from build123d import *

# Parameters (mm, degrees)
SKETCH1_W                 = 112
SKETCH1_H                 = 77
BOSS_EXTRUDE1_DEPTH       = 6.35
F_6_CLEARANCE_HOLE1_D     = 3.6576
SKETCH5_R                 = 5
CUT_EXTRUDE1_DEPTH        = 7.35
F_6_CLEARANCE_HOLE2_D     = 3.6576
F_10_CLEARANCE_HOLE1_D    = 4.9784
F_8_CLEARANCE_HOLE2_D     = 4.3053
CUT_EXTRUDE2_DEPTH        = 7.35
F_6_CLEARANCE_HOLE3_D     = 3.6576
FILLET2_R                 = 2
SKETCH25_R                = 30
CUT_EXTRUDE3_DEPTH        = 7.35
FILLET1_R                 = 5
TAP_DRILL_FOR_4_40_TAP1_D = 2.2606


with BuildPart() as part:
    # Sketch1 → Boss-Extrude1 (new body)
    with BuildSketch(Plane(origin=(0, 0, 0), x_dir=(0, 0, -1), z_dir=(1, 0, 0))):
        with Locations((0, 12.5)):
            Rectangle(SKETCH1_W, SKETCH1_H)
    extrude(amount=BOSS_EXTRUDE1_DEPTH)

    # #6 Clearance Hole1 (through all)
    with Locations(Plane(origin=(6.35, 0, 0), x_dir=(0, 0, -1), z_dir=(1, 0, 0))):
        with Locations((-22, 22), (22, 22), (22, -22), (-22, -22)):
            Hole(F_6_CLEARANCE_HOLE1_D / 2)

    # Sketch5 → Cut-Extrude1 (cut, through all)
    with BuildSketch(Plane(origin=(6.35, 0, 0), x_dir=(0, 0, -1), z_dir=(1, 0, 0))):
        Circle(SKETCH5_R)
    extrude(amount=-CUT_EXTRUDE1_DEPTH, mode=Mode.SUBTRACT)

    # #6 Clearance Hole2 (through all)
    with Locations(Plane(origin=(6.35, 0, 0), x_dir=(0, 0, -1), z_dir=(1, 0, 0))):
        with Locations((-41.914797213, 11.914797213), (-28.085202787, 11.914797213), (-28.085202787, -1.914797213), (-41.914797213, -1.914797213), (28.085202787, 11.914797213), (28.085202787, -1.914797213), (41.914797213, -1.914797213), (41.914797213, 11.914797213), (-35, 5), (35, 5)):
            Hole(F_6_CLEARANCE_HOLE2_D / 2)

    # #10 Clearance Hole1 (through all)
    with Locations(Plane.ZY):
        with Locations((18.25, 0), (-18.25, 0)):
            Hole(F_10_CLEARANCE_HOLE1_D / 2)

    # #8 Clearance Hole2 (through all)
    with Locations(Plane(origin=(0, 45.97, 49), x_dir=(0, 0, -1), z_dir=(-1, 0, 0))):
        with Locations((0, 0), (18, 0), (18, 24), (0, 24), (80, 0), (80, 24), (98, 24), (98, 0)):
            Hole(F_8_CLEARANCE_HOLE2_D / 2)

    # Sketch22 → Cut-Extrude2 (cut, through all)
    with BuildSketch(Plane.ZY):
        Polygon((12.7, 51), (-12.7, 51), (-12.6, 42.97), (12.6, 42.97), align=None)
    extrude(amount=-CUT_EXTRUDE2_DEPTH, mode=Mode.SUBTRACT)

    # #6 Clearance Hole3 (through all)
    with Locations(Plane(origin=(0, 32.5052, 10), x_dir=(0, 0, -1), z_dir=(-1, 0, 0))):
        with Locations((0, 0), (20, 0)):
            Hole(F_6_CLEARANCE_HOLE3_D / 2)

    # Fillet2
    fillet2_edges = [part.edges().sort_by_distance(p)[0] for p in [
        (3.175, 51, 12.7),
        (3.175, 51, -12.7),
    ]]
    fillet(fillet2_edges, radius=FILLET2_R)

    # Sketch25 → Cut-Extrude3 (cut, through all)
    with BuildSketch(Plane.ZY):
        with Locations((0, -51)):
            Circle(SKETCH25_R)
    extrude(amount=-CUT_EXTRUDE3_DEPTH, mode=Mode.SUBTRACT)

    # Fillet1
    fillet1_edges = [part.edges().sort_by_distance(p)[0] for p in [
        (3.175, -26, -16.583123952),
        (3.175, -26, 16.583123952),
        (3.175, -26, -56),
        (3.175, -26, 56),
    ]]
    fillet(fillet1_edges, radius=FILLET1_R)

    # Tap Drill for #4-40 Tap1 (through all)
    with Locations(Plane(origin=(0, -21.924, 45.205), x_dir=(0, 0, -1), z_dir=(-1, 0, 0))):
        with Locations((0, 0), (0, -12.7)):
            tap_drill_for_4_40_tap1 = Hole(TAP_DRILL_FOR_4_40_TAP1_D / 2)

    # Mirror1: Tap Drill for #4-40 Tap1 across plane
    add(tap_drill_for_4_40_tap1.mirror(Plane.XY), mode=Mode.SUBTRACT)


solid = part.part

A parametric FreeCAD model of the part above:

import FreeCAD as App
import Part
import Sketcher
from FreeCAD import Vector
Q = App.Units.Quantity


def edges_at(feature, points):
    """Names of the edges that pass closest to the given points."""
    edges = feature.Shape.Edges
    near = lambda p: min(range(len(edges)), key=lambda i: edges[i].distToShape(Part.Vertex(*p))[0])
    return sorted({f"Edge{near(p) + 1}" for p in points})


def add_polygon(sketch, points):
    """Adds a closed chain of lines whose ends are joined by coincident constraints."""
    first, n = sketch.GeometryCount, len(points)
    for a, b in zip(points, points[1:] + points[:1]):
        sketch.addGeometry(Part.LineSegment(App.Vector(*a, 0), App.Vector(*b, 0)), False)
    for i in range(n):
        sketch.addConstraint(Sketcher.Constraint("Coincident", first + i, 2, first + (i + 1) % n, 1))

doc = App.newDocument("Part")
body = doc.addObject("PartDesign::Body", "Body")

sketch1 = body.newObject("Sketcher::SketchObject", "Sketch")
sketch1.AttachmentSupport = (doc.getObject("YZ_Plane"), [""])
sketch1.MapMode = "FlatFace"
add_polygon(sketch1, [(51, 56), (-26, 56), (-26, -56), (51, -56)])
sketch1.addConstraint(Sketcher.Constraint("Horizontal", 0))
sketch1.addConstraint(Sketcher.Constraint("Vertical", 1))
sketch1.addConstraint(Sketcher.Constraint("Horizontal", 2))
sketch1.addConstraint(Sketcher.Constraint("Vertical", 3))
sketch1.addConstraint(Sketcher.Constraint("DistanceX", 0, 2, 0, 1, Q("77 mm")))
sketch1.addConstraint(Sketcher.Constraint("DistanceY", 1, 2, 1, 1, Q("112 mm")))
sketch1.addConstraint(Sketcher.Constraint("DistanceX", 0, 2, -1, 1, Q("26 mm")))
sketch1.addConstraint(Sketcher.Constraint("DistanceY", -1, 1, 0, 2, Q("56 mm")))
pad1 = body.newObject("PartDesign::Pad", "Pad")
pad1.Profile = sketch1
pad1.Length = 6.35

sketch2 = body.newObject("Sketcher::SketchObject", "Sketch001")
sketch2.AttachmentSupport = (doc.getObject("YZ_Plane"), [""])
sketch2.MapMode = "FlatFace"
sketch2.AttachmentOffset = App.Placement(Vector(0, 0, 6.35), App.Rotation())
sketch2.addGeometry(Part.Circle(Vector(22, 22, 0), Vector(0, 0, 1), 1.8288), False)
sketch2.addGeometry(Part.Circle(Vector(22, -22, 0), Vector(0, 0, 1), 1.8288), False)
sketch2.addGeometry(Part.Circle(Vector(-22, -22, 0), Vector(0, 0, 1), 1.8288), False)
sketch2.addGeometry(Part.Circle(Vector(-22, 22, 0), Vector(0, 0, 1), 1.8288), False)
sketch2.addConstraint(Sketcher.Constraint("Equal", 0, 1))
sketch2.addConstraint(Sketcher.Constraint("Equal", 1, 2))
sketch2.addConstraint(Sketcher.Constraint("Equal", 2, 3))
sketch2.addConstraint(Sketcher.Constraint("Symmetric", 0, 3, 2, 3, -1, 1))
sketch2.addConstraint(Sketcher.Constraint("Symmetric", 1, 3, 3, 3, -1, 1))
sketch2.addConstraint(Sketcher.Constraint("Symmetric", 1, 3, 2, 3, -2))
sketch2.addConstraint(Sketcher.Constraint("DistanceX", -1, 1, 0, 3, Q("22 mm")))
sketch2.addConstraint(Sketcher.Constraint("DistanceY", -1, 1, 0, 3, Q("22 mm")))
sketch2.addConstraint(Sketcher.Constraint("Diameter", 0, Q("3.6576 mm")))
doc.recompute()
hole = body.newObject("PartDesign::Hole", "Hole")
hole.Profile = sketch2
hole.ThreadType = "None"
hole.Diameter = 3.6576
hole.DepthType = "ThroughAll"

sketch3 = body.newObject("Sketcher::SketchObject", "Sketch002")
sketch3.AttachmentSupport = (doc.getObject("YZ_Plane"), [""])
sketch3.MapMode = "FlatFace"
sketch3.AttachmentOffset = App.Placement(Vector(0, 0, 6.35), App.Rotation())
sketch3.addGeometry(Part.Circle(Vector(0, 0, 0), Vector(0, 0, 1), 5), False)
sketch3.addConstraint(Sketcher.Constraint("Coincident", 0, 3, -1, 1))
sketch3.addConstraint(Sketcher.Constraint("Diameter", 0, Q("10 mm")))
pocket1 = body.newObject("PartDesign::Pocket", "Pocket")
pocket1.Profile = sketch3
pocket1.Type = "ThroughAll"

sketch4 = body.newObject("Sketcher::SketchObject", "Sketch003")
sketch4.AttachmentSupport = (doc.getObject("YZ_Plane"), [""])
sketch4.MapMode = "FlatFace"
sketch4.AttachmentOffset = App.Placement(Vector(0, 0, 6.35), App.Rotation())
sketch4.addGeometry(Part.Circle(Vector(11.914797, 41.914797, 0), Vector(0, 0, 1), 1.8288), False)
sketch4.addGeometry(Part.Circle(Vector(11.914797, 28.085203, 0), Vector(0, 0, 1), 1.8288), False)
sketch4.addGeometry(Part.Circle(Vector(-1.914797, 28.085203, 0), Vector(0, 0, 1), 1.8288), False)
sketch4.addGeometry(Part.Circle(Vector(-1.914797, 41.914797, 0), Vector(0, 0, 1), 1.8288), False)
sketch4.addGeometry(Part.Circle(Vector(11.914797, -28.085203, 0), Vector(0, 0, 1), 1.8288), False)
sketch4.addGeometry(Part.Circle(Vector(-1.914797, -28.085203, 0), Vector(0, 0, 1), 1.8288), False)
sketch4.addGeometry(Part.Circle(Vector(-1.914797, -41.914797, 0), Vector(0, 0, 1), 1.8288), False)
sketch4.addGeometry(Part.Circle(Vector(11.914797, -41.914797, 0), Vector(0, 0, 1), 1.8288), False)
sketch4.addGeometry(Part.Circle(Vector(5, 35, 0), Vector(0, 0, 1), 1.8288), False)
sketch4.addGeometry(Part.Circle(Vector(5, -35, 0), Vector(0, 0, 1), 1.8288), False)
sketch4.addConstraint(Sketcher.Constraint("Equal", 0, 1))
sketch4.addConstraint(Sketcher.Constraint("Equal", 1, 2))
sketch4.addConstraint(Sketcher.Constraint("Equal", 2, 3))
sketch4.addConstraint(Sketcher.Constraint("Equal", 3, 4))
sketch4.addConstraint(Sketcher.Constraint("Equal", 4, 5))
sketch4.addConstraint(Sketcher.Constraint("Equal", 5, 6))
sketch4.addConstraint(Sketcher.Constraint("Equal", 6, 7))
sketch4.addConstraint(Sketcher.Constraint("Equal", 7, 8))
sketch4.addConstraint(Sketcher.Constraint("Equal", 8, 9))
sketch4.addConstraint(Sketcher.Constraint("Symmetric", 1, 3, 4, 3, -1))
sketch4.addConstraint(Sketcher.Constraint("Symmetric", 2, 3, 5, 3, -1))
sketch4.addConstraint(Sketcher.Constraint("Symmetric", 3, 3, 6, 3, -1))
sketch4.addConstraint(Sketcher.Constraint("Symmetric", 0, 3, 7, 3, -1))
sketch4.addConstraint(Sketcher.Constraint("Symmetric", 8, 3, 9, 3, -1))
sketch4.addConstraint(Sketcher.Constraint("Horizontal", 1, 3, 2, 3))
sketch4.addConstraint(Sketcher.Constraint("Horizontal", 0, 3, 3, 3))
sketch4.addConstraint(Sketcher.Constraint("Vertical", 0, 3, 1, 3))
sketch4.addConstraint(Sketcher.Constraint("Vertical", 2, 3, 3, 3))
sketch4.addConstraint(Sketcher.Constraint("DistanceX", -1, 1, 8, 3, Q("5 mm")))
sketch4.addConstraint(Sketcher.Constraint("DistanceY", -1, 1, 8, 3, Q("35 mm")))
sketch4.addConstraint(Sketcher.Constraint("DistanceY", 4, 3, 0, 3, Q("70 mm")))
sketch4.addConstraint(Sketcher.Constraint("Diameter", 0, Q("3.6576 mm")))
sketch4.addConstraint(Sketcher.Constraint("DistanceX", -1, 1, 0, 3, Q("11.914797 mm")))
sketch4.addConstraint(Sketcher.Constraint("DistanceY", -1, 1, 0, 3, Q("41.914797 mm")))
sketch4.addConstraint(Sketcher.Constraint("DistanceX", 2, 3, -1, 1, Q("1.914797 mm")))
doc.recompute()
hole2 = body.newObject("PartDesign::Hole", "Hole001")
hole2.Profile = sketch4
hole2.ThreadType = "None"
hole2.Diameter = 3.6576
hole2.DepthType = "ThroughAll"

sketch5 = body.newObject("Sketcher::SketchObject", "Sketch004")
sketch5.AttachmentSupport = (doc.getObject("YZ_Plane"), [""])
sketch5.MapMode = "FlatFace"
sketch5.addGeometry(Part.Circle(Vector(0, 18.25, 0), Vector(0, 0, 1), 2.4892), False)
sketch5.addGeometry(Part.Circle(Vector(0, -18.25, 0), Vector(0, 0, 1), 2.4892), False)
sketch5.addConstraint(Sketcher.Constraint("Equal", 0, 1))
sketch5.addConstraint(Sketcher.Constraint("Symmetric", 0, 3, 1, 3, -1, 1))
sketch5.addConstraint(Sketcher.Constraint("PointOnObject", 0, 3, -2))
sketch5.addConstraint(Sketcher.Constraint("Diameter", 0, Q("4.9784 mm")))
sketch5.addConstraint(Sketcher.Constraint("DistanceY", 1, 3, 0, 3, Q("36.5 mm")))
doc.recompute()
hole3 = body.newObject("PartDesign::Hole", "Hole002")
hole3.Profile = sketch5
hole3.ThreadType = "None"
hole3.Diameter = 4.9784
hole3.DepthType = "ThroughAll"
hole3.Reversed = True

sketch6 = body.newObject("Sketcher::SketchObject", "Sketch005")
sketch6.AttachmentSupport = (doc.getObject("YZ_Plane"), [""])
sketch6.MapMode = "FlatFace"
sketch6.addGeometry(Part.Circle(Vector(45.97, 49, 0), Vector(0, 0, 1), 2.15265), False)
sketch6.addGeometry(Part.Circle(Vector(45.97, 31, 0), Vector(0, 0, 1), 2.15265), False)
sketch6.addGeometry(Part.Circle(Vector(21.97, 31, 0), Vector(0, 0, 1), 2.15265), False)
sketch6.addGeometry(Part.Circle(Vector(21.97, 49, 0), Vector(0, 0, 1), 2.15265), False)
sketch6.addGeometry(Part.Circle(Vector(45.97, -31, 0), Vector(0, 0, 1), 2.15265), False)
sketch6.addGeometry(Part.Circle(Vector(21.97, -31, 0), Vector(0, 0, 1), 2.15265), False)
sketch6.addGeometry(Part.Circle(Vector(21.97, -49, 0), Vector(0, 0, 1), 2.15265), False)
sketch6.addGeometry(Part.Circle(Vector(45.97, -49, 0), Vector(0, 0, 1), 2.15265), False)
sketch6.addConstraint(Sketcher.Constraint("Equal", 0, 1))
sketch6.addConstraint(Sketcher.Constraint("Equal", 1, 2))
sketch6.addConstraint(Sketcher.Constraint("Equal", 2, 3))
sketch6.addConstraint(Sketcher.Constraint("Equal", 3, 4))
sketch6.addConstraint(Sketcher.Constraint("Equal", 4, 5))
sketch6.addConstraint(Sketcher.Constraint("Equal", 5, 6))
sketch6.addConstraint(Sketcher.Constraint("Equal", 6, 7))
sketch6.addConstraint(Sketcher.Constraint("Symmetric", 1, 3, 4, 3, -1))
sketch6.addConstraint(Sketcher.Constraint("Symmetric", 2, 3, 5, 3, -1))
sketch6.addConstraint(Sketcher.Constraint("Symmetric", 3, 3, 6, 3, -1))
sketch6.addConstraint(Sketcher.Constraint("Symmetric", 0, 3, 7, 3, -1))
sketch6.addConstraint(Sketcher.Constraint("Horizontal", 1, 3, 2, 3))
sketch6.addConstraint(Sketcher.Constraint("Horizontal", 0, 3, 3, 3))
sketch6.addConstraint(Sketcher.Constraint("Vertical", 0, 3, 1, 3))
sketch6.addConstraint(Sketcher.Constraint("Vertical", 2, 3, 3, 3))
sketch6.addConstraint(Sketcher.Constraint("DistanceY", -1, 1, 0, 3, Q("49 mm")))
sketch6.addConstraint(Sketcher.Constraint("DistanceY", -1, 1, 1, 3, Q("31 mm")))
sketch6.addConstraint(Sketcher.Constraint("DistanceX", 2, 3, 1, 3, Q("24 mm")))
sketch6.addConstraint(Sketcher.Constraint("Diameter", 0, Q("4.3053 mm")))
sketch6.addConstraint(Sketcher.Constraint("DistanceX", -1, 1, 0, 3, Q("45.97 mm")))
doc.recompute()
hole4 = body.newObject("PartDesign::Hole", "Hole003")
hole4.Profile = sketch6
hole4.ThreadType = "None"
hole4.Diameter = 4.3053
hole4.DepthType = "ThroughAll"
hole4.Reversed = True

sketch7 = body.newObject("Sketcher::SketchObject", "Sketch006")
sketch7.AttachmentSupport = (doc.getObject("YZ_Plane"), [""])
sketch7.MapMode = "FlatFace"
add_polygon(sketch7, [(51, 12.7), (51, -12.7), (42.97, -12.6), (42.97, 12.6)])
sketch7.addConstraint(Sketcher.Constraint("Vertical", 0))
sketch7.addConstraint(Sketcher.Constraint("Vertical", 2))
sketch7.addConstraint(Sketcher.Constraint("Equal", 1, 3))
sketch7.addConstraint(Sketcher.Constraint("DistanceY", 0, 2, 0, 1, Q("25.4 mm")))
sketch7.addConstraint(Sketcher.Constraint("DistanceY", 2, 1, 2, 2, Q("25.2 mm")))
sketch7.addConstraint(Sketcher.Constraint("DistanceX", -1, 1, 0, 2, Q("51 mm")))
sketch7.addConstraint(Sketcher.Constraint("DistanceY", 0, 2, -1, 1, Q("12.7 mm")))
sketch7.addConstraint(Sketcher.Constraint("DistanceX", -1, 1, 1, 2, Q("42.97 mm")))
pocket2 = body.newObject("PartDesign::Pocket", "Pocket001")
pocket2.Profile = sketch7
pocket2.Type = "ThroughAll"
pocket2.Reversed = True

sketch8 = body.newObject("Sketcher::SketchObject", "Sketch007")
sketch8.AttachmentSupport = (doc.getObject("YZ_Plane"), [""])
sketch8.MapMode = "FlatFace"
sketch8.addGeometry(Part.Circle(Vector(32.5052, 10, 0), Vector(0, 0, 1), 1.8288), False)
sketch8.addGeometry(Part.Circle(Vector(32.5052, -10, 0), Vector(0, 0, 1), 1.8288), False)
sketch8.addConstraint(Sketcher.Constraint("Equal", 0, 1))
sketch8.addConstraint(Sketcher.Constraint("Symmetric", 0, 3, 1, 3, -1))
sketch8.addConstraint(Sketcher.Constraint("DistanceY", -1, 1, 0, 3, Q("10 mm")))
sketch8.addConstraint(Sketcher.Constraint("Diameter", 0, Q("3.6576 mm")))
sketch8.addConstraint(Sketcher.Constraint("DistanceX", -1, 1, 0, 3, Q("32.5052 mm")))
doc.recompute()
hole5 = body.newObject("PartDesign::Hole", "Hole004")
hole5.Profile = sketch8
hole5.ThreadType = "None"
hole5.Diameter = 3.6576
hole5.DepthType = "ThroughAll"
hole5.Reversed = True
doc.recompute()

fillet = body.newObject("PartDesign::Fillet", "Fillet")
fillet.Base = (hole5, edges_at(hole5, [(3.175, 51, 12.7), (3.175, 51, -12.7)]))
fillet.Radius = 2

sketch9 = body.newObject("Sketcher::SketchObject", "Sketch008")
sketch9.AttachmentSupport = (doc.getObject("YZ_Plane"), [""])
sketch9.MapMode = "FlatFace"
sketch9.addGeometry(Part.Circle(Vector(-51, 0, 0), Vector(0, 0, 1), 30), False)
sketch9.addConstraint(Sketcher.Constraint("PointOnObject", 0, 3, -1))
sketch9.addConstraint(Sketcher.Constraint("Diameter", 0, Q("60 mm")))
sketch9.addConstraint(Sketcher.Constraint("DistanceX", 0, 3, -1, 1, Q("51 mm")))
pocket3 = body.newObject("PartDesign::Pocket", "Pocket002")
pocket3.Profile = sketch9
pocket3.Type = "ThroughAll"
pocket3.Reversed = True
doc.recompute()

fillet2 = body.newObject("PartDesign::Fillet", "Fillet001")
fillet2.Base = (pocket3, edges_at(pocket3, [
    (3.175, -26, -16.583),
    (3.175, -26, 16.583),
    (3.175, -26, -56),
    (3.175, -26, 56),
]))
fillet2.Radius = 5

sketch10 = body.newObject("Sketcher::SketchObject", "Sketch009")
sketch10.AttachmentSupport = (doc.getObject("YZ_Plane"), [""])
sketch10.MapMode = "FlatFace"
sketch10.addGeometry(Part.Circle(Vector(-21.924, 45.205, 0), Vector(0, 0, 1), 1.1303), False)
sketch10.addGeometry(Part.Circle(Vector(-9.224, 45.205, 0), Vector(0, 0, 1), 1.1303), False)
sketch10.addConstraint(Sketcher.Constraint("Equal", 0, 1))
sketch10.addConstraint(Sketcher.Constraint("Horizontal", 0, 3, 1, 3))
sketch10.addConstraint(Sketcher.Constraint("Diameter", 0, Q("2.2606 mm")))
sketch10.addConstraint(Sketcher.Constraint("DistanceX", 0, 3, 1, 3, Q("12.7 mm")))
sketch10.addConstraint(Sketcher.Constraint("DistanceX", 0, 3, -1, 1, Q("21.924 mm")))
sketch10.addConstraint(Sketcher.Constraint("DistanceY", -1, 1, 0, 3, Q("45.205 mm")))
doc.recompute()
hole6 = body.newObject("PartDesign::Hole", "Hole005")
hole6.Profile = sketch10
hole6.ThreadType = "None"
hole6.Diameter = 2.2606
hole6.DepthType = "ThroughAll"
hole6.Reversed = True
doc.recompute()

mirrored = body.newObject("PartDesign::Mirrored", "Mirrored")
mirrored.Originals = [hole6]
mirrored.MirrorPlane = (doc.getObject("XY_Plane"), [""])
body.Tip = mirrored

doc.recompute()
